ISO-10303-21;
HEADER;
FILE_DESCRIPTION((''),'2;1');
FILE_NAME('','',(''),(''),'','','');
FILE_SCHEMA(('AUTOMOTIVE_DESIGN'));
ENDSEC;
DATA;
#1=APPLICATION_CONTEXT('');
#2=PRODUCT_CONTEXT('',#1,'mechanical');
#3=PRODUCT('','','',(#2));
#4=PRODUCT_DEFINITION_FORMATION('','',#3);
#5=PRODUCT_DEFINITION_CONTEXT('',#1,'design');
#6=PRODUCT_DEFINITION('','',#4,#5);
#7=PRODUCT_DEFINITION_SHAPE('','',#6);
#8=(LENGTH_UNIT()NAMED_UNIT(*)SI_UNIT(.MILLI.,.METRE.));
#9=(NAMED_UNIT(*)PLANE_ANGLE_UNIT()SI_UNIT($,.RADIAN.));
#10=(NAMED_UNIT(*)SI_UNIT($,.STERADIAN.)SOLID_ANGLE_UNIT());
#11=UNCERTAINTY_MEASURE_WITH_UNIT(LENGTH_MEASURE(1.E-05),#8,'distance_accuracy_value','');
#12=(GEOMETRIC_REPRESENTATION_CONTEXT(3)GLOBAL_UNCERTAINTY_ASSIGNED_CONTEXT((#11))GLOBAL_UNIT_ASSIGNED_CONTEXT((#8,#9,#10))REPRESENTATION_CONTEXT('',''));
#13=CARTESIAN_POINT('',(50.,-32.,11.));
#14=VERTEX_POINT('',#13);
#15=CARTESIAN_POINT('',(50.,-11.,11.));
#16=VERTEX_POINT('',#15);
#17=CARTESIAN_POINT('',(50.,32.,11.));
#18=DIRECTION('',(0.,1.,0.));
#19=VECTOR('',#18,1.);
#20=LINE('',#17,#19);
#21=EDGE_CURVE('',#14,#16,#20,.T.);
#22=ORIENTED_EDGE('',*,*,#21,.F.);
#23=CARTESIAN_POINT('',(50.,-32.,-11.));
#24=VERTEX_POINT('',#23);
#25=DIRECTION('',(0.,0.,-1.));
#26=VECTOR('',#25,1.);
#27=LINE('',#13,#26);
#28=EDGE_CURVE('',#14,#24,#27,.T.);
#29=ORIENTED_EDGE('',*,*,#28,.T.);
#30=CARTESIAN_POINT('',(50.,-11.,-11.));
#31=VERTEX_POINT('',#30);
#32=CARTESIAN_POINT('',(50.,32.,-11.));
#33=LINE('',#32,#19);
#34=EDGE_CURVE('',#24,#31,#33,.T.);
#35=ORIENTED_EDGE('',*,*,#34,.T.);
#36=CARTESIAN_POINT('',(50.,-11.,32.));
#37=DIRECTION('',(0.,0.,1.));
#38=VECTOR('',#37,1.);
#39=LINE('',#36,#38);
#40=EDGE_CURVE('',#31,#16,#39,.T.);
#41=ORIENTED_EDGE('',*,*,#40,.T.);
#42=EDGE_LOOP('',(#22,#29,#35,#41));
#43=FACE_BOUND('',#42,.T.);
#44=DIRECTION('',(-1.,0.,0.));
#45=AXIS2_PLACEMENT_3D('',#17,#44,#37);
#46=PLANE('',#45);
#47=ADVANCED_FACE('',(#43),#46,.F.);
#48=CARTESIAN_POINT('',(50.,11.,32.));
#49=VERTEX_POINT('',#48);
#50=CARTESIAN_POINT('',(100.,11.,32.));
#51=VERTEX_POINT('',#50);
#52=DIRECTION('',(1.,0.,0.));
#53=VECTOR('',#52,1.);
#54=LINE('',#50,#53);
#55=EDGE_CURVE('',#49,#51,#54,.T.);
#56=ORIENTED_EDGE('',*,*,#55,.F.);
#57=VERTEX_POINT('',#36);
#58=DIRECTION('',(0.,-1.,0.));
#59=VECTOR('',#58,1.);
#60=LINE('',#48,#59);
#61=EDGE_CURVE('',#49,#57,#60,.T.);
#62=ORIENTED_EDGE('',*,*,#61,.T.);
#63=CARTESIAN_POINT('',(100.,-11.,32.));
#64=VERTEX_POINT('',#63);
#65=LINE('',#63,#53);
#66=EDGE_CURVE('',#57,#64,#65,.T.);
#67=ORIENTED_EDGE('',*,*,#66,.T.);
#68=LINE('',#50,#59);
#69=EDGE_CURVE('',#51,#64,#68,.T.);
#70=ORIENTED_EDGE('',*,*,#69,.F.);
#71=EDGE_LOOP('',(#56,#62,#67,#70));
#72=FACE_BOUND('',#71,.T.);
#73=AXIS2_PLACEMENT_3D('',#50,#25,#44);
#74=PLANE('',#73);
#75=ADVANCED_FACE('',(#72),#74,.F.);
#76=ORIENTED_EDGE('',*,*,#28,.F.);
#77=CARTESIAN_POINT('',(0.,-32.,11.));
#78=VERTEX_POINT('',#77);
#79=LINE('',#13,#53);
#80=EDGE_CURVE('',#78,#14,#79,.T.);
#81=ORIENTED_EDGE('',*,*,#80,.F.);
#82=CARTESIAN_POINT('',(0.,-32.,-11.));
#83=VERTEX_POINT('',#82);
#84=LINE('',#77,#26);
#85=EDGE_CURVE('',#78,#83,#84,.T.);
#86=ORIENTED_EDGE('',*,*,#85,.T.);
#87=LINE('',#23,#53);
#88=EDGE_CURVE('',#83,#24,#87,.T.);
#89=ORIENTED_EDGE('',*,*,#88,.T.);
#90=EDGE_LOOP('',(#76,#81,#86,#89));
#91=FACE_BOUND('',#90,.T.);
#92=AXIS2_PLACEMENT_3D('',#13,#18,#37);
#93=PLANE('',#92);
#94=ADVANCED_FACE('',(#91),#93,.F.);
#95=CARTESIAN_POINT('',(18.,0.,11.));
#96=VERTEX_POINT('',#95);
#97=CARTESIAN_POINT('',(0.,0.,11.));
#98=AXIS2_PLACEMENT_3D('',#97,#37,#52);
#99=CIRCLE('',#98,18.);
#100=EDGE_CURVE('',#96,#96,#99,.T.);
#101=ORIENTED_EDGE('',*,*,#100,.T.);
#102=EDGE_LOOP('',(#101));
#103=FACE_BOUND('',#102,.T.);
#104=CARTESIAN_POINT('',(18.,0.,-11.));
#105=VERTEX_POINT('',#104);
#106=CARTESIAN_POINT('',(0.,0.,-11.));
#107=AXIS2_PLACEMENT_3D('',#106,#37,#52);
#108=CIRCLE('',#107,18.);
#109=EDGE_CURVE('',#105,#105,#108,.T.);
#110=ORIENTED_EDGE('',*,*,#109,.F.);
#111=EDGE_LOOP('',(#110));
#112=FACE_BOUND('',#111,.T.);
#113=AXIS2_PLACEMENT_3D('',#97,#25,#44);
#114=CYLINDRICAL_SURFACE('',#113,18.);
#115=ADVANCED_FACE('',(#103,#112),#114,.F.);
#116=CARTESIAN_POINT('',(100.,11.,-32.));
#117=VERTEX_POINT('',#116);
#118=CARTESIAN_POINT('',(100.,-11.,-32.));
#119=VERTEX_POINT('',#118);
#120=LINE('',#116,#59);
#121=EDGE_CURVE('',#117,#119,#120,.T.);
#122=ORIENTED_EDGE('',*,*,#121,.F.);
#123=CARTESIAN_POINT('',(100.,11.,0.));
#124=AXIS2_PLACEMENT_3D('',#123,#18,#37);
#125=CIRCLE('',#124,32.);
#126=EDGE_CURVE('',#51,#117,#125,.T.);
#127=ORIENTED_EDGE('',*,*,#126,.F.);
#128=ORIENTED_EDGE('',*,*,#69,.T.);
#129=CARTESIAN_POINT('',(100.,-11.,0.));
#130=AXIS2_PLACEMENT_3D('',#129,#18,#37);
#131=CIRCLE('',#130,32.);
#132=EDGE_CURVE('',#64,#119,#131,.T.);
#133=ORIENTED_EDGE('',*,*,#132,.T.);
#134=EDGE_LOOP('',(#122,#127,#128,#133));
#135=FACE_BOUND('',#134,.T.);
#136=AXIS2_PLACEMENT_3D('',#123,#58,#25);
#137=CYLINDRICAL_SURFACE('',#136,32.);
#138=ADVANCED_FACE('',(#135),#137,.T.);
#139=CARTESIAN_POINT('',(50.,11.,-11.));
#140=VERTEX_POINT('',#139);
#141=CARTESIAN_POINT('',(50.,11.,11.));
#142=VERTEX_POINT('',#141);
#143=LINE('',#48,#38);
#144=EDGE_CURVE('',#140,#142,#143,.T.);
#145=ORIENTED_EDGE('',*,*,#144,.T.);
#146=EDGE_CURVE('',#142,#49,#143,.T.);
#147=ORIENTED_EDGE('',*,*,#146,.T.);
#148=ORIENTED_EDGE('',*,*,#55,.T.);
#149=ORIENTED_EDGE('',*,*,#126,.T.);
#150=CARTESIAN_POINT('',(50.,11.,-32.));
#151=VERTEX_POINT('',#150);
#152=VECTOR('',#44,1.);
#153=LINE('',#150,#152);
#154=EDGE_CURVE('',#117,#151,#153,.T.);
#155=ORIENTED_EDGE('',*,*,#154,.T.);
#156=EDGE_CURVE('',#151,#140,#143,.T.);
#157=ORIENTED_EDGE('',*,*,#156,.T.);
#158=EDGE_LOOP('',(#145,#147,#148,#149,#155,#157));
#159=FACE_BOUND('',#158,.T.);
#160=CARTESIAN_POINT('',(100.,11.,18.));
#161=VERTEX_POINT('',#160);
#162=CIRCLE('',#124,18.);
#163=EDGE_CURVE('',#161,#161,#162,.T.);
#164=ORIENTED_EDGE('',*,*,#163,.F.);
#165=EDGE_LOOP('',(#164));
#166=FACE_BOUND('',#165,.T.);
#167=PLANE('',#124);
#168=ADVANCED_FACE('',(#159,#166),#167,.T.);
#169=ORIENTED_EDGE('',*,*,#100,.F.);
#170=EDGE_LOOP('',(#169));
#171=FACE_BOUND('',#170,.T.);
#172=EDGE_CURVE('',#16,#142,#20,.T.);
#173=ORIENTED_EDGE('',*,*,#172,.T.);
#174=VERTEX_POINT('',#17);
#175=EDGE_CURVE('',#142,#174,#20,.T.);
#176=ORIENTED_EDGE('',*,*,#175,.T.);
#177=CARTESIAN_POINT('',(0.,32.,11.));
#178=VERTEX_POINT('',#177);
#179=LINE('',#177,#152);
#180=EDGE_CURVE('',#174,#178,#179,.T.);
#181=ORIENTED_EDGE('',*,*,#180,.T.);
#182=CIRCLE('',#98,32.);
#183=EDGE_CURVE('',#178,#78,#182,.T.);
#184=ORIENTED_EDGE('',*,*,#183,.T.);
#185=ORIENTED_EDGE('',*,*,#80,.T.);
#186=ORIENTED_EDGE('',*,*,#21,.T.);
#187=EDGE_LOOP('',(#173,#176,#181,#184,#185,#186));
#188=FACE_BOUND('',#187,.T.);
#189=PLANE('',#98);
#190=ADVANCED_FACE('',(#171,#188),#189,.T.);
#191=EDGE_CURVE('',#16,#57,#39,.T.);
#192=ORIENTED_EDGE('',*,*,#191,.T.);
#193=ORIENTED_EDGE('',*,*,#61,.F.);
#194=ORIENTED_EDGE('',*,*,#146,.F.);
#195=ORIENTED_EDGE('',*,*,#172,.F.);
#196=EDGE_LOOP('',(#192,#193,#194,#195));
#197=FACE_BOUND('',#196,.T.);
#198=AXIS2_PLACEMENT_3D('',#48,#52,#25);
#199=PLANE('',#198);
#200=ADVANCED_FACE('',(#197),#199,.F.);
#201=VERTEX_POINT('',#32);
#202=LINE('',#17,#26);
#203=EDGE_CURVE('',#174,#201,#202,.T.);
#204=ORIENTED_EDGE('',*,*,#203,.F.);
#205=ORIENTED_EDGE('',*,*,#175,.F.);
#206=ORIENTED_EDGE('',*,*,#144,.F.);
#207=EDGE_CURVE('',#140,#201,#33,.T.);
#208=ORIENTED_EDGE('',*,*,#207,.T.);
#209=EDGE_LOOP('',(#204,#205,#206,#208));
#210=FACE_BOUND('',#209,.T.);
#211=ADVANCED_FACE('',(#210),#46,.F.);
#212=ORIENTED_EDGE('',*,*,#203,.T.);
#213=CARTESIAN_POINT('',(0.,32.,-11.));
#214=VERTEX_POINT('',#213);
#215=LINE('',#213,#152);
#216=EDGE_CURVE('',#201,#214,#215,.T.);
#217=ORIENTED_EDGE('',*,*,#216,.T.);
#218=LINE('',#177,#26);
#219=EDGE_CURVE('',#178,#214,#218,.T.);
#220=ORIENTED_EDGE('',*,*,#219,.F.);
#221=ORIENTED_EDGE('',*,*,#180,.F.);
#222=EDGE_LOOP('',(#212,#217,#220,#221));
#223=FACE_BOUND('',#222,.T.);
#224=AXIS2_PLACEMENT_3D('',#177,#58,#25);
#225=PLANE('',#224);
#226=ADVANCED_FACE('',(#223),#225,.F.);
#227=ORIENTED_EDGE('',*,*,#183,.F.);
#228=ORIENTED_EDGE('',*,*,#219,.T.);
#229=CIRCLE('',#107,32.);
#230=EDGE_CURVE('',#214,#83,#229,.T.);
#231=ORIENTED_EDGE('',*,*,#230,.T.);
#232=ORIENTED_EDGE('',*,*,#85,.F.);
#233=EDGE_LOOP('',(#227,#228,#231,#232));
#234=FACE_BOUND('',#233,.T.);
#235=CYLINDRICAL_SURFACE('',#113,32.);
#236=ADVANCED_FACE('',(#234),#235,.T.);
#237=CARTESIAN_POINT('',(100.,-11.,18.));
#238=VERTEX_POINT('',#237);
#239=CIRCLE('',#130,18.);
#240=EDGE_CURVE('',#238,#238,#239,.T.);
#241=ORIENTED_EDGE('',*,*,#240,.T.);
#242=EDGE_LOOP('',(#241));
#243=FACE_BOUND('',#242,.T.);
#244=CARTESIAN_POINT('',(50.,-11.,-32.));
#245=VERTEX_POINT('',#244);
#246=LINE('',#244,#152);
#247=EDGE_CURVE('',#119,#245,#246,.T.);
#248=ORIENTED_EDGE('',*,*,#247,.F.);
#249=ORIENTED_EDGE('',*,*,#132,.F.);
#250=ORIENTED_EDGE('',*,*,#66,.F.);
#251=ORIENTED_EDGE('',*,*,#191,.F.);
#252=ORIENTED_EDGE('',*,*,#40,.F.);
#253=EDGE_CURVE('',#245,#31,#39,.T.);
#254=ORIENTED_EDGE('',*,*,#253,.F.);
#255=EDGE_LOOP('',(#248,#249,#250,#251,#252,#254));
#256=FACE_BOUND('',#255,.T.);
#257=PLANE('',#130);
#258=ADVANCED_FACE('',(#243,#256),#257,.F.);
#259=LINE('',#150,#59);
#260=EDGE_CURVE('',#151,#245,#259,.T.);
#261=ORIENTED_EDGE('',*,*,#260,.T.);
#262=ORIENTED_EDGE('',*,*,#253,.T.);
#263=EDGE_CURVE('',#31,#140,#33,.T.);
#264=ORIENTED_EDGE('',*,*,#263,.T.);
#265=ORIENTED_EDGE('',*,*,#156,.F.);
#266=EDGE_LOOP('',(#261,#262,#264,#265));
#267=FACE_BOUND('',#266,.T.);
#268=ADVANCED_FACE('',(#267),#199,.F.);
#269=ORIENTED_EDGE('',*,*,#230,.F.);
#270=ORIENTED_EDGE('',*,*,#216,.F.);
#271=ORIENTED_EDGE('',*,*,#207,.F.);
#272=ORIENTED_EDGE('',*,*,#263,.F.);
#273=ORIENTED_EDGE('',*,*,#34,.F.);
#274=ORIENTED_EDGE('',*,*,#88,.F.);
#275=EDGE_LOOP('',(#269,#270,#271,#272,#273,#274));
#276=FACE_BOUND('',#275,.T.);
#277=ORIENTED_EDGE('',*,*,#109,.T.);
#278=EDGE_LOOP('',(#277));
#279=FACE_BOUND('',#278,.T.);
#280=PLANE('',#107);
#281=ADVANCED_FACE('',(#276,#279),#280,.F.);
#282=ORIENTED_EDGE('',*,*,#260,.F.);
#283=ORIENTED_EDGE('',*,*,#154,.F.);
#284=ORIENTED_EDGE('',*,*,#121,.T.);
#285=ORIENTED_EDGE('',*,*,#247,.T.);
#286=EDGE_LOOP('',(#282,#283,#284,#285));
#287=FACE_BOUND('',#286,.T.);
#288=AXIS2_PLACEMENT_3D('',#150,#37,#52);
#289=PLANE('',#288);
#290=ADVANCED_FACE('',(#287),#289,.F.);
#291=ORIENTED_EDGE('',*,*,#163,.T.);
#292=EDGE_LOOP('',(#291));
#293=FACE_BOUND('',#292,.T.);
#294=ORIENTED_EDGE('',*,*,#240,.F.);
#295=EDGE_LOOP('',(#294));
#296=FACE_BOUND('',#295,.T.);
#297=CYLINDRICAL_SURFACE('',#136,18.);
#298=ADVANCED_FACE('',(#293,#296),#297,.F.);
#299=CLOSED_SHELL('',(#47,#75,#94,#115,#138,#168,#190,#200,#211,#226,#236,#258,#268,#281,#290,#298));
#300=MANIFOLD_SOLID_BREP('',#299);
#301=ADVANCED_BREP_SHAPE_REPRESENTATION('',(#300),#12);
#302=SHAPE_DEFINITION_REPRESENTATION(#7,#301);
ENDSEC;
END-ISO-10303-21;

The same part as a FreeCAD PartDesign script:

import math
import FreeCAD as App
import Part
import Sketcher

V = App.Vector
Q = App.Units.Quantity

doc = App.newDocument("Part")
body = doc.addObject("PartDesign::Body", "Body")

# Sketch on XY plane
sketch1 = body.newObject("Sketcher::SketchObject", "Sketch")
sketch1.AttachmentSupport = (doc.getObject("XY_Plane"), [""])
sketch1.MapMode = "FlatFace"
sketch1.addGeometry([
    Part.LineSegment(V(50, 32, 0), V(0, 32, 0)),  # 0
    Part.ArcOfCircle(Part.Circle(V(0, 0, 0), V(0, 0, 1), 32), math.radians(90), math.radians(270)),  # 1
    Part.LineSegment(V(0, -32, 0), V(50, -32, 0)),  # 2
    Part.LineSegment(V(50, -32, 0), V(50, 32, 0)),  # 3
    Part.Circle(V(0, 0, 0), V(0, 0, 1), 18),  # 4
], False)
sketch1.addConstraint([
    Sketcher.Constraint("Tangent", 0, 2, 1, 1),
    Sketcher.Constraint("Tangent", 1, 2, 2, 1),
    Sketcher.Constraint("Coincident", 2, 2, 3, 1),
    Sketcher.Constraint("Coincident", 3, 2, 0, 1),
    Sketcher.Constraint("Horizontal", 0),
    Sketcher.Constraint("Horizontal", 2),
    Sketcher.Constraint("Vertical", 3),
    Sketcher.Constraint("Coincident", 1, 3, -1, 1),
    Sketcher.Constraint("Coincident", 4, 3, -1, 1),
    Sketcher.Constraint("Diameter", 4, Q("36 mm")),
    Sketcher.Constraint("Radius", 1, Q("32 mm")),
    Sketcher.Constraint("DistanceX", 0, 2, 0, 1, Q("50 mm")),
])
pad1 = body.newObject("PartDesign::Pad", "Pad")
pad1.Profile = sketch1
pad1.Length = 22
pad1.Midplane = True

# Sketch on XZ plane
sketch2 = body.newObject("Sketcher::SketchObject", "Sketch001")
sketch2.AttachmentSupport = (doc.getObject("XZ_Plane"), [""])
sketch2.MapMode = "FlatFace"
sketch2.addGeometry([
    Part.LineSegment(V(50, 32, 0), V(100, 32, 0)),  # 0
    Part.ArcOfCircle(Part.Circle(V(100, 0, 0), V(0, 0, 1), 32), math.radians(-90), math.radians(90)),  # 1
    Part.LineSegment(V(100, -32, 0), V(50, -32, 0)),  # 2
    Part.LineSegment(V(50, -32, 0), V(50, 32, 0)),  # 3
    Part.Circle(V(100, 0, 0), V(0, 0, 1), 18),  # 4
], False)
sketch2.addConstraint([
    Sketcher.Constraint("Tangent", 0, 2, 1, 2),
    Sketcher.Constraint("Tangent", 1, 1, 2, 1),
    Sketcher.Constraint("Coincident", 2, 2, 3, 1),
    Sketcher.Constraint("Coincident", 3, 2, 0, 1),
    Sketcher.Constraint("Horizontal", 0),
    Sketcher.Constraint("Horizontal", 2),
    Sketcher.Constraint("Vertical", 3),
    Sketcher.Constraint("Coincident", 4, 3, 1, 3),
    Sketcher.Constraint("PointOnObject", 1, 3, -1),
    Sketcher.Constraint("Diameter", 4, Q("36 mm")),
    Sketcher.Constraint("Radius", 1, Q("32 mm")),
    Sketcher.Constraint("DistanceX", 0, 1, 0, 2, Q("50 mm")),
    Sketcher.Constraint("DistanceX", -1, 1, 1, 3, Q("100 mm")),
])
pad2 = body.newObject("PartDesign::Pad", "Pad001")
pad2.Profile = sketch2
pad2.Length = 22
pad2.Midplane = True

doc.recompute()
